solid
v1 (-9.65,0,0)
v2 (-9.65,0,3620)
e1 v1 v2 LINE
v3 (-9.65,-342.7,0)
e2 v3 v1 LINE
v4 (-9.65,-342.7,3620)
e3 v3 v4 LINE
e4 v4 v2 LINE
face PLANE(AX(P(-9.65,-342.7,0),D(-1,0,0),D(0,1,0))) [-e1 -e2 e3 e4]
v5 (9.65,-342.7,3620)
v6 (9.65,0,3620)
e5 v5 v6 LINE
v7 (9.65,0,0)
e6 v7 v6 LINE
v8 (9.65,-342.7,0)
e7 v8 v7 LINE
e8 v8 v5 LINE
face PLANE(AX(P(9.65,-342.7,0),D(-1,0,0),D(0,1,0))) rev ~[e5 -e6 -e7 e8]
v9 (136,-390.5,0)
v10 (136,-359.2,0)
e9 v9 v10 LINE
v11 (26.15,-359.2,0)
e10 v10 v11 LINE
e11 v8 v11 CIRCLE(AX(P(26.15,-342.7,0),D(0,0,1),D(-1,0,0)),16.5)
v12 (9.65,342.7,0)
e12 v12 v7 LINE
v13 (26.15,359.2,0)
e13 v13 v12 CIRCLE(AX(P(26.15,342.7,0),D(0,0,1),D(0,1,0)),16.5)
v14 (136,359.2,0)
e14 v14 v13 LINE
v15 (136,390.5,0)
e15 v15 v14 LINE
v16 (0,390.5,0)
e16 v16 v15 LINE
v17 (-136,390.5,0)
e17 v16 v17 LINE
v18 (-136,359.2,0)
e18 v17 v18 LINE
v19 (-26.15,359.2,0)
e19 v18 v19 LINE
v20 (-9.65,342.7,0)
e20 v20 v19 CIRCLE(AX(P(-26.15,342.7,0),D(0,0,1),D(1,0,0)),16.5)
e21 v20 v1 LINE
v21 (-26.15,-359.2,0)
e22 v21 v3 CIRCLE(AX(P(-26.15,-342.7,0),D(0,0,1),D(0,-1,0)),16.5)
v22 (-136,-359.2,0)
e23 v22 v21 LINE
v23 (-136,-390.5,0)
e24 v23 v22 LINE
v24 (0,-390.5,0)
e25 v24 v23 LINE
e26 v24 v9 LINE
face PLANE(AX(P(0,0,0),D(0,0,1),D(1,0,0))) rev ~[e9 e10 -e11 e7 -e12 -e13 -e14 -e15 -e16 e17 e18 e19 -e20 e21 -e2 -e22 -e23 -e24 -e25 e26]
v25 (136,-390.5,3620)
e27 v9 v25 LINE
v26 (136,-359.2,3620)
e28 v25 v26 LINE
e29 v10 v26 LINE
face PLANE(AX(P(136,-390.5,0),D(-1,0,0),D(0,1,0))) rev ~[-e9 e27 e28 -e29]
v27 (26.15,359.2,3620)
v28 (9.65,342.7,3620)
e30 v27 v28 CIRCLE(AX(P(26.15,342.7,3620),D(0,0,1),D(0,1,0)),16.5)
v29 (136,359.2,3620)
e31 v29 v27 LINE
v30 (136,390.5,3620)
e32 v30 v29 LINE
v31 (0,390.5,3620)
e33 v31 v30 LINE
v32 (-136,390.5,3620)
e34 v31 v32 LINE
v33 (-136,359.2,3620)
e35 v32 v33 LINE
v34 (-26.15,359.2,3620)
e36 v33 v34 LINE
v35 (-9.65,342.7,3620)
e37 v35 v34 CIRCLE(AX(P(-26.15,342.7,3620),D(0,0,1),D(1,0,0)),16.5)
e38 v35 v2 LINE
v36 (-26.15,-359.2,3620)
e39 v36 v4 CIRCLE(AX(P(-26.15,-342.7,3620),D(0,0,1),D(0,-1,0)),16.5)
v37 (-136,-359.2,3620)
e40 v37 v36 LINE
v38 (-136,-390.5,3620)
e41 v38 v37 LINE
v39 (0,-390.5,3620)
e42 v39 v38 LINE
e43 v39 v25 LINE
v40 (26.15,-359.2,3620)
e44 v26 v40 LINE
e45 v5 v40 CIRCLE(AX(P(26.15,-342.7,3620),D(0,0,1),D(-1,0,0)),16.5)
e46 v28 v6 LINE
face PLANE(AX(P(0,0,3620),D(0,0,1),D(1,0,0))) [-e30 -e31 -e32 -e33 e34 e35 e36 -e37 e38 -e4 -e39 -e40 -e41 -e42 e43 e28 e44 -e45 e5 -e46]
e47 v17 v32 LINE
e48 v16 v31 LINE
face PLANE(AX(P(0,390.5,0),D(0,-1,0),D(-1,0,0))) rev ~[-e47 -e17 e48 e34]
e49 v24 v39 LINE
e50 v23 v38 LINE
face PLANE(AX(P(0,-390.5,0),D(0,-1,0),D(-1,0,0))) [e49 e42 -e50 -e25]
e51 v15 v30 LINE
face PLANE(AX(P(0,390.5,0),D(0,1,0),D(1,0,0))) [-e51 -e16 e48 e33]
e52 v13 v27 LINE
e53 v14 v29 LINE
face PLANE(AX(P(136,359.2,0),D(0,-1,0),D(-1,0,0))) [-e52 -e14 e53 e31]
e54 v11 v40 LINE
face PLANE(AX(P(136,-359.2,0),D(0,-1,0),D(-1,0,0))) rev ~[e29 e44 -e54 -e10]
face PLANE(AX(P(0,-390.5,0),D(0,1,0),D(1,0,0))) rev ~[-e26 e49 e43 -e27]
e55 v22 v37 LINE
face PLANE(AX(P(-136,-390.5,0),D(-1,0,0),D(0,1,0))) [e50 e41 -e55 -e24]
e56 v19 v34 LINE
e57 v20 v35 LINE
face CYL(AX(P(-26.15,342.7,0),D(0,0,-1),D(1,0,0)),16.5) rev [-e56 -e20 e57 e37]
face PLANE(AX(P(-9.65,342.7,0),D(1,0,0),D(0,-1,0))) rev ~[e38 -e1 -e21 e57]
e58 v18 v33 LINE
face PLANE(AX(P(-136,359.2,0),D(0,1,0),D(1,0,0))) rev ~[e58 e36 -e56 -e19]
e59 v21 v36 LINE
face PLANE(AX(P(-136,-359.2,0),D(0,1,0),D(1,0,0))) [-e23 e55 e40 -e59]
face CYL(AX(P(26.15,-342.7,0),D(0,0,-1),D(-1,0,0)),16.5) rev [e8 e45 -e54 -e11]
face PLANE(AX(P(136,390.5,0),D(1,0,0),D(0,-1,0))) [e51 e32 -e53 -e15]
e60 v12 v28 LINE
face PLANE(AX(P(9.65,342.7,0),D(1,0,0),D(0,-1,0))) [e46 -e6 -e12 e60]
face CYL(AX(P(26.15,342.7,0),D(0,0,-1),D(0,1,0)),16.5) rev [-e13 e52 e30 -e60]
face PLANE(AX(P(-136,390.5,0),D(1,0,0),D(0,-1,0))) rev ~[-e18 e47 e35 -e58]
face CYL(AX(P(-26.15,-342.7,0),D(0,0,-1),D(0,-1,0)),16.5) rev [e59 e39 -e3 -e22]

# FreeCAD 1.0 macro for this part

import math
import FreeCAD as App
import Part
import Sketcher
Q = App.Units.Quantity

doc = App.newDocument("Part")
body = doc.addObject("PartDesign::Body", "Body")

# Sketch on XY plane
sketch1 = body.newObject("Sketcher::SketchObject", "Sketch")
sketch1.AttachmentSupport = (doc.getObject("XY_Plane"), [""])
sketch1.MapMode = "FlatFace"
sketch1.addGeometry(Part.LineSegment(App.Vector(-136, -359, 0), App.Vector(-136, -390, 0)), False)
sketch1.addGeometry(Part.LineSegment(App.Vector(-136, -390, 0), App.Vector(136, -390, 0)), False)
sketch1.addGeometry(Part.LineSegment(App.Vector(136, -390, 0), App.Vector(136, -359, 0)), False)
sketch1.addGeometry(Part.LineSegment(App.Vector(136, -359, 0), App.Vector(26, -359, 0)), False)
sketch1.addGeometry(Part.ArcOfCircle(Part.Circle(App.Vector(26, -343, 0), App.Vector(0, 0, 1), 16), math.radians(180), math.radians(270)), False)
sketch1.addGeometry(Part.LineSegment(App.Vector(10, -343, 0), App.Vector(10, 343, 0)), False)
sketch1.addGeometry(Part.ArcOfCircle(Part.Circle(App.Vector(26, 343, 0), App.Vector(0, 0, 1), 16), math.radians(90), math.radians(180)), False)
sketch1.addGeometry(Part.LineSegment(App.Vector(26, 359, 0), App.Vector(136, 359, 0)), False)
sketch1.addGeometry(Part.LineSegment(App.Vector(136, 359, 0), App.Vector(136, 390, 0)), False)
sketch1.addGeometry(Part.LineSegment(App.Vector(136, 390, 0), App.Vector(-136, 390, 0)), False)
sketch1.addGeometry(Part.LineSegment(App.Vector(-136, 390, 0), App.Vector(-136, 359, 0)), False)
sketch1.addGeometry(Part.LineSegment(App.Vector(-136, 359, 0), App.Vector(-26, 359, 0)), False)
sketch1.addGeometry(Part.ArcOfCircle(Part.Circle(App.Vector(-26, 343, 0), App.Vector(0, 0, 1), 16), math.radians(0), math.radians(90)), False)
sketch1.addGeometry(Part.LineSegment(App.Vector(-10, 343, 0), App.Vector(-10, -343, 0)), False)
sketch1.addGeometry(Part.ArcOfCircle(Part.Circle(App.Vector(-26, -343, 0), App.Vector(0, 0, 1), 16), math.radians(-90), math.radians(0)), False)
sketch1.addGeometry(Part.LineSegment(App.Vector(-26, -359, 0), App.Vector(-136, -359, 0)), False)
sketch1.addConstraint(Sketcher.Constraint("Coincident", 0, 2, 1, 1))
sketch1.addConstraint(Sketcher.Constraint("Coincident", 1, 2, 2, 1))
sketch1.addConstraint(Sketcher.Constraint("Coincident", 2, 2, 3, 1))
sketch1.addConstraint(Sketcher.Constraint("Tangent", 3, 2, 4, 2))
sketch1.addConstraint(Sketcher.Constraint("Tangent", 4, 1, 5, 1))
sketch1.addConstraint(Sketcher.Constraint("Tangent", 5, 2, 6, 2))
sketch1.addConstraint(Sketcher.Constraint("Tangent", 6, 1, 7, 1))
sketch1.addConstraint(Sketcher.Constraint("Coincident", 7, 2, 8, 1))
sketch1.addConstraint(Sketcher.Constraint("Coincident", 8, 2, 9, 1))
sketch1.addConstraint(Sketcher.Constraint("Coincident", 9, 2, 10, 1))
sketch1.addConstraint(Sketcher.Constraint("Coincident", 10, 2, 11, 1))
sketch1.addConstraint(Sketcher.Constraint("Tangent", 11, 2, 12, 2))
sketch1.addConstraint(Sketcher.Constraint("Tangent", 12, 1, 13, 1))
sketch1.addConstraint(Sketcher.Constraint("Tangent", 13, 2, 14, 2))
sketch1.addConstraint(Sketcher.Constraint("Tangent", 14, 1, 15, 1))
sketch1.addConstraint(Sketcher.Constraint("Coincident", 15, 2, 0, 1))
sketch1.addConstraint(Sketcher.Constraint("Vertical", 0))
sketch1.addConstraint(Sketcher.Constraint("Horizontal", 1))
sketch1.addConstraint(Sketcher.Constraint("Vertical", 2))
sketch1.addConstraint(Sketcher.Constraint("Horizontal", 3))
sketch1.addConstraint(Sketcher.Constraint("Vertical", 5))
sketch1.addConstraint(Sketcher.Constraint("Horizontal", 7))
sketch1.addConstraint(Sketcher.Constraint("Vertical", 8))
sketch1.addConstraint(Sketcher.Constraint("Horizontal", 9))
sketch1.addConstraint(Sketcher.Constraint("Vertical", 10))
sketch1.addConstraint(Sketcher.Constraint("Horizontal", 11))
sketch1.addConstraint(Sketcher.Constraint("Vertical", 13))
sketch1.addConstraint(Sketcher.Constraint("Horizontal", 15))
sketch1.addConstraint(Sketcher.Constraint("Equal", 4, 6))
sketch1.addConstraint(Sketcher.Constraint("Equal", 6, 12))
sketch1.addConstraint(Sketcher.Constraint("Equal", 12, 14))
sketch1.addConstraint(Sketcher.Constraint("Symmetric", 4, 3, 12, 3, -1, 1))
sketch1.addConstraint(Sketcher.Constraint("Symmetric", 0, 2, 8, 2, -1, 1))
sketch1.addConstraint(Sketcher.Constraint("Symmetric", 7, 2, 10, 2, -2))
sketch1.addConstraint(Sketcher.Constraint("Symmetric", 2, 2, 15, 2, -2))
sketch1.addConstraint(Sketcher.Constraint("Radius", 4, Q("16.5 mm")))
sketch1.addConstraint(Sketcher.Constraint("DistanceY", 0, 2, 0, 1, Q("31.3 mm")))
sketch1.addConstraint(Sketcher.Constraint("DistanceX", 0, 2, -1, 1, Q("136 mm")))
sketch1.addConstraint(Sketcher.Constraint("DistanceY", 0, 2, -1, 1, Q("390.5 mm")))
sketch1.addConstraint(Sketcher.Constraint("DistanceX", -1, 1, 4, 1, Q("9.65 mm")))
pad1 = body.newObject("PartDesign::Pad", "Pad")
pad1.Profile = sketch1
pad1.Length = 3620

doc.recompute()
